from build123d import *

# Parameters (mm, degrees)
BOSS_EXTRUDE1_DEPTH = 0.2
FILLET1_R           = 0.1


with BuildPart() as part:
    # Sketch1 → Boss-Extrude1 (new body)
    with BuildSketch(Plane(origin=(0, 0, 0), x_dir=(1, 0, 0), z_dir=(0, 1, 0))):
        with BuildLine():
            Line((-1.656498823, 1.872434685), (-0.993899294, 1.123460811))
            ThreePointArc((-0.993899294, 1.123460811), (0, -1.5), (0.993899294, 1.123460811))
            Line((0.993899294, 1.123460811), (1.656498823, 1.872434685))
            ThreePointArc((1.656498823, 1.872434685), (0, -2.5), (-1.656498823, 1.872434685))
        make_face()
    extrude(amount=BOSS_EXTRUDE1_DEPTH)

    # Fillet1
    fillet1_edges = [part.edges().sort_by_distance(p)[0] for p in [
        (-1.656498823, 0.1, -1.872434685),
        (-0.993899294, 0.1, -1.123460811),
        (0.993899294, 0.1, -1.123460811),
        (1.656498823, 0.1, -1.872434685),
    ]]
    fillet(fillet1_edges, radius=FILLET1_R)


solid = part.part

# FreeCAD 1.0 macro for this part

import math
import FreeCAD as App
import Part
import Sketcher

V = App.Vector
Q = App.Units.Quantity


def edges_at(feature, points):
    """Names of the edges that pass closest to the given points."""
    edges = feature.Shape.Edges
    near = lambda p: min(range(len(edges)), key=lambda i: edges[i].distToShape(Part.Vertex(*p))[0])
    return sorted({f"Edge{near(p) + 1}" for p in points})

doc = App.newDocument("Part")
body = doc.addObject("PartDesign::Body", "Body")

sketch1 = body.newObject("Sketcher::SketchObject", "Sketch")
sketch1.AttachmentSupport = (doc.getObject("XZ_Plane"), [""])
sketch1.MapMode = "FlatFace"
sketch1.addGeometry(Part.LineSegment(V(-1, -1.1, 0), V(-1.7, -1.9, 0)), False)
sketch1.addGeometry(Part.ArcOfCircle(Part.Circle(V(0, 0, 0), V(0, 0, 1), 2.5), math.radians(-49), math.radians(229)), False)
sketch1.addGeometry(Part.LineSegment(V(1.7, -1.9, 0), V(1, -1.1, 0)), False)
sketch1.addGeometry(Part.ArcOfCircle(Part.Circle(V(0, 0, 0), V(0, 0, 1), 1.5), math.radians(-49), math.radians(229)), False)
sketch1.addConstraint(Sketcher.Constraint("Coincident", 0, 2, 1, 2))
sketch1.addConstraint(Sketcher.Constraint("Coincident", 1, 1, 2, 1))
sketch1.addConstraint(Sketcher.Constraint("Coincident", 2, 2, 3, 1))
sketch1.addConstraint(Sketcher.Constraint("Coincident", 3, 2, 0, 1))
sketch1.addConstraint(Sketcher.Constraint("Coincident", 1, 3, -1, 1))
sketch1.addConstraint(Sketcher.Constraint("Coincident", 3, 3, -1, 1))
sketch1.addConstraint(Sketcher.Constraint("Horizontal", 0, 2, 1, 1))
sketch1.addConstraint(Sketcher.Constraint("Horizontal", 2, 2, 3, 2))
sketch1.addConstraint(Sketcher.Constraint("Radius", 1, Q("2.5 mm")))
sketch1.addConstraint(Sketcher.Constraint("Radius", 3, Q("1.5 mm")))
sketch1.addConstraint(Sketcher.Constraint("DistanceX", 0, 2, -1, 1, Q("1.656499 mm")))
sketch1.addConstraint(Sketcher.Constraint("DistanceX", -1, 1, 2, 2, Q("0.993899 mm")))
pad1 = body.newObject("PartDesign::Pad", "Pad")
pad1.Profile = sketch1
pad1.Length = 0.2
pad1.Reversed = True
doc.recompute()

fillet = body.newObject("PartDesign::Fillet", "Fillet")
fillet.Base = (pad1, edges_at(pad1, [
    (-1.656, 0.1, -1.872),
    (-0.994, 0.1, -1.123),
    (0.994, 0.1, -1.123),
    (1.656, 0.1, -1.872),
]))
fillet.Radius = 0.1

doc.recompute()
